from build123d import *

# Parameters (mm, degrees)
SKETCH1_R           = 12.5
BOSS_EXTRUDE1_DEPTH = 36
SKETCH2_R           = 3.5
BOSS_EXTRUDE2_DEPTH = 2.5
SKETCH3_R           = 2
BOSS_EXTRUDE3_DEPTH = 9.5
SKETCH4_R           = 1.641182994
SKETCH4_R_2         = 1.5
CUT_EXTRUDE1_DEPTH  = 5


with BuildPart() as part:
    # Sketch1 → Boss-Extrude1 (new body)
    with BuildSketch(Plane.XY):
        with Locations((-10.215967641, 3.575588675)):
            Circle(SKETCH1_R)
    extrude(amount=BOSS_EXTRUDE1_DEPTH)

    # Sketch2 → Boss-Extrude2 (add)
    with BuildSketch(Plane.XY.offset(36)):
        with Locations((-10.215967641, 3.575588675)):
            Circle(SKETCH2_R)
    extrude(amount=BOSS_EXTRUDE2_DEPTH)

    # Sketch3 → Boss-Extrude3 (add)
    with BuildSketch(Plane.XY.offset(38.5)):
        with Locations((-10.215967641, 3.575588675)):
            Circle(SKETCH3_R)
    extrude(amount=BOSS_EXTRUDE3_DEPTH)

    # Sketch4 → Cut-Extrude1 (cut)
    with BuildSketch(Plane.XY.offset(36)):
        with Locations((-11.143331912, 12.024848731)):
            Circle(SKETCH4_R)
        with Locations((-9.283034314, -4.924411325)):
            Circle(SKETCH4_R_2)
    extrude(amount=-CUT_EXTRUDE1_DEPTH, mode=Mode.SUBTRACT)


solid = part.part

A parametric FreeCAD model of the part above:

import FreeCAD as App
import Part
import Sketcher

V = App.Vector
Q = App.Units.Quantity

doc = App.newDocument("Part")
params = doc.addObject("Spreadsheet::Sheet", "Params")
for row, (alias, value) in enumerate([
    ("sketch1_diameter", "25 mm"),
    ("pad1_length", "36 mm"),
    ("sketch2_diameter", "7 mm"),
    ("pad2_length", "2.5 mm"),
    ("sketch3_diameter", "4 mm"),
    ("pad3_length", "9.5 mm"),
    ("sketch4_diameter", "3 mm"),
    ("pocket1_length", "5 mm"),
], start=1):
    params.set(f"A{row}", alias)
    params.set(f"B{row}", "=" + value)
    params.setAlias(f"B{row}", alias)

body = doc.addObject("PartDesign::Body", "Body")

sketch1 = body.newObject("Sketcher::SketchObject", "Sketch")
sketch1.AttachmentSupport = (doc.getObject("XY_Plane"), [""])
sketch1.MapMode = "FlatFace"
sketch1.addGeometry(Part.Circle(V(-10, 4, 0), V(0, 0, 1), 12), False)
sketch1.addConstraint(Sketcher.Constraint("Diameter", 0, Q("25 mm")))
sketch1.addConstraint(Sketcher.Constraint("DistanceY", -1, 1, 0, 3, Q("3.575589 mm")))
sketch1.addConstraint(Sketcher.Constraint("DistanceX", 0, 3, -1, 1, Q("10.215968 mm")))
sketch1.setExpression("Constraints[0]", "Params.sketch1_diameter")
pad1 = body.newObject("PartDesign::Pad", "Pad")
pad1.Profile = sketch1
pad1.setExpression("Length", "Params.pad1_length")

sketch2 = body.newObject("Sketcher::SketchObject", "Sketch001")
sketch2.AttachmentSupport = (doc.getObject("XY_Plane"), [""])
sketch2.MapMode = "FlatFace"
sketch2.AttachmentOffset = App.Placement(V(0, 0, 36), App.Rotation())
sketch2.addGeometry(Part.Circle(V(-10.2, 3.6, 0), V(0, 0, 1), 3.5), False)
sketch2.addConstraint(Sketcher.Constraint("Diameter", 0, Q("7 mm")))
sketch2.addConstraint(Sketcher.Constraint("DistanceY", -1, 1, 0, 3, Q("3.575589 mm")))
sketch2.addConstraint(Sketcher.Constraint("DistanceX", 0, 3, -1, 1, Q("10.215968 mm")))
sketch2.setExpression("Constraints[0]", "Params.sketch2_diameter")
pad2 = body.newObject("PartDesign::Pad", "Pad001")
pad2.Profile = sketch2
pad2.setExpression("Length", "Params.pad2_length")

sketch3 = body.newObject("Sketcher::SketchObject", "Sketch002")
sketch3.AttachmentSupport = (doc.getObject("XY_Plane"), [""])
sketch3.MapMode = "FlatFace"
sketch3.AttachmentOffset = App.Placement(V(0, 0, 38.5), App.Rotation())
sketch3.addGeometry(Part.Circle(V(-10.2, 3.6, 0), V(0, 0, 1), 2), False)
sketch3.addConstraint(Sketcher.Constraint("Diameter", 0, Q("4 mm")))
sketch3.addConstraint(Sketcher.Constraint("DistanceY", -1, 1, 0, 3, Q("3.575589 mm")))
sketch3.addConstraint(Sketcher.Constraint("DistanceX", 0, 3, -1, 1, Q("10.215968 mm")))
sketch3.setExpression("Constraints[0]", "Params.sketch3_diameter")
pad3 = body.newObject("PartDesign::Pad", "Pad002")
pad3.Profile = sketch3
pad3.setExpression("Length", "Params.pad3_length")

sketch4 = body.newObject("Sketcher::SketchObject", "Sketch003")
sketch4.AttachmentSupport = (doc.getObject("XY_Plane"), [""])
sketch4.MapMode = "FlatFace"
sketch4.AttachmentOffset = App.Placement(V(0, 0, 36), App.Rotation())
sketch4.addGeometry(Part.Circle(V(-11.1, 12, 0), V(0, 0, 1), 1.6), False)
sketch4.addGeometry(Part.Circle(V(-9.3, -4.9, 0), V(0, 0, 1), 1.5), False)
sketch4.addConstraint(Sketcher.Constraint("Diameter", 1, Q("3 mm")))
sketch4.addConstraint(Sketcher.Constraint("Diameter", 0, Q("3.282366 mm")))
sketch4.addConstraint(Sketcher.Constraint("DistanceX", 0, 3, -1, 1, Q("11.143332 mm")))
sketch4.addConstraint(Sketcher.Constraint("DistanceY", -1, 1, 0, 3, Q("12.024849 mm")))
sketch4.addConstraint(Sketcher.Constraint("DistanceY", 1, 3, -1, 1, Q("4.924411 mm")))
sketch4.addConstraint(Sketcher.Constraint("DistanceX", 1, 3, -1, 1, Q("9.283034 mm")))
sketch4.setExpression("Constraints[0]", "Params.sketch4_diameter")
pocket1 = body.newObject("PartDesign::Pocket", "Pocket")
pocket1.Profile = sketch4
pocket1.setExpression("Length", "Params.pocket1_length")

doc.recompute()
